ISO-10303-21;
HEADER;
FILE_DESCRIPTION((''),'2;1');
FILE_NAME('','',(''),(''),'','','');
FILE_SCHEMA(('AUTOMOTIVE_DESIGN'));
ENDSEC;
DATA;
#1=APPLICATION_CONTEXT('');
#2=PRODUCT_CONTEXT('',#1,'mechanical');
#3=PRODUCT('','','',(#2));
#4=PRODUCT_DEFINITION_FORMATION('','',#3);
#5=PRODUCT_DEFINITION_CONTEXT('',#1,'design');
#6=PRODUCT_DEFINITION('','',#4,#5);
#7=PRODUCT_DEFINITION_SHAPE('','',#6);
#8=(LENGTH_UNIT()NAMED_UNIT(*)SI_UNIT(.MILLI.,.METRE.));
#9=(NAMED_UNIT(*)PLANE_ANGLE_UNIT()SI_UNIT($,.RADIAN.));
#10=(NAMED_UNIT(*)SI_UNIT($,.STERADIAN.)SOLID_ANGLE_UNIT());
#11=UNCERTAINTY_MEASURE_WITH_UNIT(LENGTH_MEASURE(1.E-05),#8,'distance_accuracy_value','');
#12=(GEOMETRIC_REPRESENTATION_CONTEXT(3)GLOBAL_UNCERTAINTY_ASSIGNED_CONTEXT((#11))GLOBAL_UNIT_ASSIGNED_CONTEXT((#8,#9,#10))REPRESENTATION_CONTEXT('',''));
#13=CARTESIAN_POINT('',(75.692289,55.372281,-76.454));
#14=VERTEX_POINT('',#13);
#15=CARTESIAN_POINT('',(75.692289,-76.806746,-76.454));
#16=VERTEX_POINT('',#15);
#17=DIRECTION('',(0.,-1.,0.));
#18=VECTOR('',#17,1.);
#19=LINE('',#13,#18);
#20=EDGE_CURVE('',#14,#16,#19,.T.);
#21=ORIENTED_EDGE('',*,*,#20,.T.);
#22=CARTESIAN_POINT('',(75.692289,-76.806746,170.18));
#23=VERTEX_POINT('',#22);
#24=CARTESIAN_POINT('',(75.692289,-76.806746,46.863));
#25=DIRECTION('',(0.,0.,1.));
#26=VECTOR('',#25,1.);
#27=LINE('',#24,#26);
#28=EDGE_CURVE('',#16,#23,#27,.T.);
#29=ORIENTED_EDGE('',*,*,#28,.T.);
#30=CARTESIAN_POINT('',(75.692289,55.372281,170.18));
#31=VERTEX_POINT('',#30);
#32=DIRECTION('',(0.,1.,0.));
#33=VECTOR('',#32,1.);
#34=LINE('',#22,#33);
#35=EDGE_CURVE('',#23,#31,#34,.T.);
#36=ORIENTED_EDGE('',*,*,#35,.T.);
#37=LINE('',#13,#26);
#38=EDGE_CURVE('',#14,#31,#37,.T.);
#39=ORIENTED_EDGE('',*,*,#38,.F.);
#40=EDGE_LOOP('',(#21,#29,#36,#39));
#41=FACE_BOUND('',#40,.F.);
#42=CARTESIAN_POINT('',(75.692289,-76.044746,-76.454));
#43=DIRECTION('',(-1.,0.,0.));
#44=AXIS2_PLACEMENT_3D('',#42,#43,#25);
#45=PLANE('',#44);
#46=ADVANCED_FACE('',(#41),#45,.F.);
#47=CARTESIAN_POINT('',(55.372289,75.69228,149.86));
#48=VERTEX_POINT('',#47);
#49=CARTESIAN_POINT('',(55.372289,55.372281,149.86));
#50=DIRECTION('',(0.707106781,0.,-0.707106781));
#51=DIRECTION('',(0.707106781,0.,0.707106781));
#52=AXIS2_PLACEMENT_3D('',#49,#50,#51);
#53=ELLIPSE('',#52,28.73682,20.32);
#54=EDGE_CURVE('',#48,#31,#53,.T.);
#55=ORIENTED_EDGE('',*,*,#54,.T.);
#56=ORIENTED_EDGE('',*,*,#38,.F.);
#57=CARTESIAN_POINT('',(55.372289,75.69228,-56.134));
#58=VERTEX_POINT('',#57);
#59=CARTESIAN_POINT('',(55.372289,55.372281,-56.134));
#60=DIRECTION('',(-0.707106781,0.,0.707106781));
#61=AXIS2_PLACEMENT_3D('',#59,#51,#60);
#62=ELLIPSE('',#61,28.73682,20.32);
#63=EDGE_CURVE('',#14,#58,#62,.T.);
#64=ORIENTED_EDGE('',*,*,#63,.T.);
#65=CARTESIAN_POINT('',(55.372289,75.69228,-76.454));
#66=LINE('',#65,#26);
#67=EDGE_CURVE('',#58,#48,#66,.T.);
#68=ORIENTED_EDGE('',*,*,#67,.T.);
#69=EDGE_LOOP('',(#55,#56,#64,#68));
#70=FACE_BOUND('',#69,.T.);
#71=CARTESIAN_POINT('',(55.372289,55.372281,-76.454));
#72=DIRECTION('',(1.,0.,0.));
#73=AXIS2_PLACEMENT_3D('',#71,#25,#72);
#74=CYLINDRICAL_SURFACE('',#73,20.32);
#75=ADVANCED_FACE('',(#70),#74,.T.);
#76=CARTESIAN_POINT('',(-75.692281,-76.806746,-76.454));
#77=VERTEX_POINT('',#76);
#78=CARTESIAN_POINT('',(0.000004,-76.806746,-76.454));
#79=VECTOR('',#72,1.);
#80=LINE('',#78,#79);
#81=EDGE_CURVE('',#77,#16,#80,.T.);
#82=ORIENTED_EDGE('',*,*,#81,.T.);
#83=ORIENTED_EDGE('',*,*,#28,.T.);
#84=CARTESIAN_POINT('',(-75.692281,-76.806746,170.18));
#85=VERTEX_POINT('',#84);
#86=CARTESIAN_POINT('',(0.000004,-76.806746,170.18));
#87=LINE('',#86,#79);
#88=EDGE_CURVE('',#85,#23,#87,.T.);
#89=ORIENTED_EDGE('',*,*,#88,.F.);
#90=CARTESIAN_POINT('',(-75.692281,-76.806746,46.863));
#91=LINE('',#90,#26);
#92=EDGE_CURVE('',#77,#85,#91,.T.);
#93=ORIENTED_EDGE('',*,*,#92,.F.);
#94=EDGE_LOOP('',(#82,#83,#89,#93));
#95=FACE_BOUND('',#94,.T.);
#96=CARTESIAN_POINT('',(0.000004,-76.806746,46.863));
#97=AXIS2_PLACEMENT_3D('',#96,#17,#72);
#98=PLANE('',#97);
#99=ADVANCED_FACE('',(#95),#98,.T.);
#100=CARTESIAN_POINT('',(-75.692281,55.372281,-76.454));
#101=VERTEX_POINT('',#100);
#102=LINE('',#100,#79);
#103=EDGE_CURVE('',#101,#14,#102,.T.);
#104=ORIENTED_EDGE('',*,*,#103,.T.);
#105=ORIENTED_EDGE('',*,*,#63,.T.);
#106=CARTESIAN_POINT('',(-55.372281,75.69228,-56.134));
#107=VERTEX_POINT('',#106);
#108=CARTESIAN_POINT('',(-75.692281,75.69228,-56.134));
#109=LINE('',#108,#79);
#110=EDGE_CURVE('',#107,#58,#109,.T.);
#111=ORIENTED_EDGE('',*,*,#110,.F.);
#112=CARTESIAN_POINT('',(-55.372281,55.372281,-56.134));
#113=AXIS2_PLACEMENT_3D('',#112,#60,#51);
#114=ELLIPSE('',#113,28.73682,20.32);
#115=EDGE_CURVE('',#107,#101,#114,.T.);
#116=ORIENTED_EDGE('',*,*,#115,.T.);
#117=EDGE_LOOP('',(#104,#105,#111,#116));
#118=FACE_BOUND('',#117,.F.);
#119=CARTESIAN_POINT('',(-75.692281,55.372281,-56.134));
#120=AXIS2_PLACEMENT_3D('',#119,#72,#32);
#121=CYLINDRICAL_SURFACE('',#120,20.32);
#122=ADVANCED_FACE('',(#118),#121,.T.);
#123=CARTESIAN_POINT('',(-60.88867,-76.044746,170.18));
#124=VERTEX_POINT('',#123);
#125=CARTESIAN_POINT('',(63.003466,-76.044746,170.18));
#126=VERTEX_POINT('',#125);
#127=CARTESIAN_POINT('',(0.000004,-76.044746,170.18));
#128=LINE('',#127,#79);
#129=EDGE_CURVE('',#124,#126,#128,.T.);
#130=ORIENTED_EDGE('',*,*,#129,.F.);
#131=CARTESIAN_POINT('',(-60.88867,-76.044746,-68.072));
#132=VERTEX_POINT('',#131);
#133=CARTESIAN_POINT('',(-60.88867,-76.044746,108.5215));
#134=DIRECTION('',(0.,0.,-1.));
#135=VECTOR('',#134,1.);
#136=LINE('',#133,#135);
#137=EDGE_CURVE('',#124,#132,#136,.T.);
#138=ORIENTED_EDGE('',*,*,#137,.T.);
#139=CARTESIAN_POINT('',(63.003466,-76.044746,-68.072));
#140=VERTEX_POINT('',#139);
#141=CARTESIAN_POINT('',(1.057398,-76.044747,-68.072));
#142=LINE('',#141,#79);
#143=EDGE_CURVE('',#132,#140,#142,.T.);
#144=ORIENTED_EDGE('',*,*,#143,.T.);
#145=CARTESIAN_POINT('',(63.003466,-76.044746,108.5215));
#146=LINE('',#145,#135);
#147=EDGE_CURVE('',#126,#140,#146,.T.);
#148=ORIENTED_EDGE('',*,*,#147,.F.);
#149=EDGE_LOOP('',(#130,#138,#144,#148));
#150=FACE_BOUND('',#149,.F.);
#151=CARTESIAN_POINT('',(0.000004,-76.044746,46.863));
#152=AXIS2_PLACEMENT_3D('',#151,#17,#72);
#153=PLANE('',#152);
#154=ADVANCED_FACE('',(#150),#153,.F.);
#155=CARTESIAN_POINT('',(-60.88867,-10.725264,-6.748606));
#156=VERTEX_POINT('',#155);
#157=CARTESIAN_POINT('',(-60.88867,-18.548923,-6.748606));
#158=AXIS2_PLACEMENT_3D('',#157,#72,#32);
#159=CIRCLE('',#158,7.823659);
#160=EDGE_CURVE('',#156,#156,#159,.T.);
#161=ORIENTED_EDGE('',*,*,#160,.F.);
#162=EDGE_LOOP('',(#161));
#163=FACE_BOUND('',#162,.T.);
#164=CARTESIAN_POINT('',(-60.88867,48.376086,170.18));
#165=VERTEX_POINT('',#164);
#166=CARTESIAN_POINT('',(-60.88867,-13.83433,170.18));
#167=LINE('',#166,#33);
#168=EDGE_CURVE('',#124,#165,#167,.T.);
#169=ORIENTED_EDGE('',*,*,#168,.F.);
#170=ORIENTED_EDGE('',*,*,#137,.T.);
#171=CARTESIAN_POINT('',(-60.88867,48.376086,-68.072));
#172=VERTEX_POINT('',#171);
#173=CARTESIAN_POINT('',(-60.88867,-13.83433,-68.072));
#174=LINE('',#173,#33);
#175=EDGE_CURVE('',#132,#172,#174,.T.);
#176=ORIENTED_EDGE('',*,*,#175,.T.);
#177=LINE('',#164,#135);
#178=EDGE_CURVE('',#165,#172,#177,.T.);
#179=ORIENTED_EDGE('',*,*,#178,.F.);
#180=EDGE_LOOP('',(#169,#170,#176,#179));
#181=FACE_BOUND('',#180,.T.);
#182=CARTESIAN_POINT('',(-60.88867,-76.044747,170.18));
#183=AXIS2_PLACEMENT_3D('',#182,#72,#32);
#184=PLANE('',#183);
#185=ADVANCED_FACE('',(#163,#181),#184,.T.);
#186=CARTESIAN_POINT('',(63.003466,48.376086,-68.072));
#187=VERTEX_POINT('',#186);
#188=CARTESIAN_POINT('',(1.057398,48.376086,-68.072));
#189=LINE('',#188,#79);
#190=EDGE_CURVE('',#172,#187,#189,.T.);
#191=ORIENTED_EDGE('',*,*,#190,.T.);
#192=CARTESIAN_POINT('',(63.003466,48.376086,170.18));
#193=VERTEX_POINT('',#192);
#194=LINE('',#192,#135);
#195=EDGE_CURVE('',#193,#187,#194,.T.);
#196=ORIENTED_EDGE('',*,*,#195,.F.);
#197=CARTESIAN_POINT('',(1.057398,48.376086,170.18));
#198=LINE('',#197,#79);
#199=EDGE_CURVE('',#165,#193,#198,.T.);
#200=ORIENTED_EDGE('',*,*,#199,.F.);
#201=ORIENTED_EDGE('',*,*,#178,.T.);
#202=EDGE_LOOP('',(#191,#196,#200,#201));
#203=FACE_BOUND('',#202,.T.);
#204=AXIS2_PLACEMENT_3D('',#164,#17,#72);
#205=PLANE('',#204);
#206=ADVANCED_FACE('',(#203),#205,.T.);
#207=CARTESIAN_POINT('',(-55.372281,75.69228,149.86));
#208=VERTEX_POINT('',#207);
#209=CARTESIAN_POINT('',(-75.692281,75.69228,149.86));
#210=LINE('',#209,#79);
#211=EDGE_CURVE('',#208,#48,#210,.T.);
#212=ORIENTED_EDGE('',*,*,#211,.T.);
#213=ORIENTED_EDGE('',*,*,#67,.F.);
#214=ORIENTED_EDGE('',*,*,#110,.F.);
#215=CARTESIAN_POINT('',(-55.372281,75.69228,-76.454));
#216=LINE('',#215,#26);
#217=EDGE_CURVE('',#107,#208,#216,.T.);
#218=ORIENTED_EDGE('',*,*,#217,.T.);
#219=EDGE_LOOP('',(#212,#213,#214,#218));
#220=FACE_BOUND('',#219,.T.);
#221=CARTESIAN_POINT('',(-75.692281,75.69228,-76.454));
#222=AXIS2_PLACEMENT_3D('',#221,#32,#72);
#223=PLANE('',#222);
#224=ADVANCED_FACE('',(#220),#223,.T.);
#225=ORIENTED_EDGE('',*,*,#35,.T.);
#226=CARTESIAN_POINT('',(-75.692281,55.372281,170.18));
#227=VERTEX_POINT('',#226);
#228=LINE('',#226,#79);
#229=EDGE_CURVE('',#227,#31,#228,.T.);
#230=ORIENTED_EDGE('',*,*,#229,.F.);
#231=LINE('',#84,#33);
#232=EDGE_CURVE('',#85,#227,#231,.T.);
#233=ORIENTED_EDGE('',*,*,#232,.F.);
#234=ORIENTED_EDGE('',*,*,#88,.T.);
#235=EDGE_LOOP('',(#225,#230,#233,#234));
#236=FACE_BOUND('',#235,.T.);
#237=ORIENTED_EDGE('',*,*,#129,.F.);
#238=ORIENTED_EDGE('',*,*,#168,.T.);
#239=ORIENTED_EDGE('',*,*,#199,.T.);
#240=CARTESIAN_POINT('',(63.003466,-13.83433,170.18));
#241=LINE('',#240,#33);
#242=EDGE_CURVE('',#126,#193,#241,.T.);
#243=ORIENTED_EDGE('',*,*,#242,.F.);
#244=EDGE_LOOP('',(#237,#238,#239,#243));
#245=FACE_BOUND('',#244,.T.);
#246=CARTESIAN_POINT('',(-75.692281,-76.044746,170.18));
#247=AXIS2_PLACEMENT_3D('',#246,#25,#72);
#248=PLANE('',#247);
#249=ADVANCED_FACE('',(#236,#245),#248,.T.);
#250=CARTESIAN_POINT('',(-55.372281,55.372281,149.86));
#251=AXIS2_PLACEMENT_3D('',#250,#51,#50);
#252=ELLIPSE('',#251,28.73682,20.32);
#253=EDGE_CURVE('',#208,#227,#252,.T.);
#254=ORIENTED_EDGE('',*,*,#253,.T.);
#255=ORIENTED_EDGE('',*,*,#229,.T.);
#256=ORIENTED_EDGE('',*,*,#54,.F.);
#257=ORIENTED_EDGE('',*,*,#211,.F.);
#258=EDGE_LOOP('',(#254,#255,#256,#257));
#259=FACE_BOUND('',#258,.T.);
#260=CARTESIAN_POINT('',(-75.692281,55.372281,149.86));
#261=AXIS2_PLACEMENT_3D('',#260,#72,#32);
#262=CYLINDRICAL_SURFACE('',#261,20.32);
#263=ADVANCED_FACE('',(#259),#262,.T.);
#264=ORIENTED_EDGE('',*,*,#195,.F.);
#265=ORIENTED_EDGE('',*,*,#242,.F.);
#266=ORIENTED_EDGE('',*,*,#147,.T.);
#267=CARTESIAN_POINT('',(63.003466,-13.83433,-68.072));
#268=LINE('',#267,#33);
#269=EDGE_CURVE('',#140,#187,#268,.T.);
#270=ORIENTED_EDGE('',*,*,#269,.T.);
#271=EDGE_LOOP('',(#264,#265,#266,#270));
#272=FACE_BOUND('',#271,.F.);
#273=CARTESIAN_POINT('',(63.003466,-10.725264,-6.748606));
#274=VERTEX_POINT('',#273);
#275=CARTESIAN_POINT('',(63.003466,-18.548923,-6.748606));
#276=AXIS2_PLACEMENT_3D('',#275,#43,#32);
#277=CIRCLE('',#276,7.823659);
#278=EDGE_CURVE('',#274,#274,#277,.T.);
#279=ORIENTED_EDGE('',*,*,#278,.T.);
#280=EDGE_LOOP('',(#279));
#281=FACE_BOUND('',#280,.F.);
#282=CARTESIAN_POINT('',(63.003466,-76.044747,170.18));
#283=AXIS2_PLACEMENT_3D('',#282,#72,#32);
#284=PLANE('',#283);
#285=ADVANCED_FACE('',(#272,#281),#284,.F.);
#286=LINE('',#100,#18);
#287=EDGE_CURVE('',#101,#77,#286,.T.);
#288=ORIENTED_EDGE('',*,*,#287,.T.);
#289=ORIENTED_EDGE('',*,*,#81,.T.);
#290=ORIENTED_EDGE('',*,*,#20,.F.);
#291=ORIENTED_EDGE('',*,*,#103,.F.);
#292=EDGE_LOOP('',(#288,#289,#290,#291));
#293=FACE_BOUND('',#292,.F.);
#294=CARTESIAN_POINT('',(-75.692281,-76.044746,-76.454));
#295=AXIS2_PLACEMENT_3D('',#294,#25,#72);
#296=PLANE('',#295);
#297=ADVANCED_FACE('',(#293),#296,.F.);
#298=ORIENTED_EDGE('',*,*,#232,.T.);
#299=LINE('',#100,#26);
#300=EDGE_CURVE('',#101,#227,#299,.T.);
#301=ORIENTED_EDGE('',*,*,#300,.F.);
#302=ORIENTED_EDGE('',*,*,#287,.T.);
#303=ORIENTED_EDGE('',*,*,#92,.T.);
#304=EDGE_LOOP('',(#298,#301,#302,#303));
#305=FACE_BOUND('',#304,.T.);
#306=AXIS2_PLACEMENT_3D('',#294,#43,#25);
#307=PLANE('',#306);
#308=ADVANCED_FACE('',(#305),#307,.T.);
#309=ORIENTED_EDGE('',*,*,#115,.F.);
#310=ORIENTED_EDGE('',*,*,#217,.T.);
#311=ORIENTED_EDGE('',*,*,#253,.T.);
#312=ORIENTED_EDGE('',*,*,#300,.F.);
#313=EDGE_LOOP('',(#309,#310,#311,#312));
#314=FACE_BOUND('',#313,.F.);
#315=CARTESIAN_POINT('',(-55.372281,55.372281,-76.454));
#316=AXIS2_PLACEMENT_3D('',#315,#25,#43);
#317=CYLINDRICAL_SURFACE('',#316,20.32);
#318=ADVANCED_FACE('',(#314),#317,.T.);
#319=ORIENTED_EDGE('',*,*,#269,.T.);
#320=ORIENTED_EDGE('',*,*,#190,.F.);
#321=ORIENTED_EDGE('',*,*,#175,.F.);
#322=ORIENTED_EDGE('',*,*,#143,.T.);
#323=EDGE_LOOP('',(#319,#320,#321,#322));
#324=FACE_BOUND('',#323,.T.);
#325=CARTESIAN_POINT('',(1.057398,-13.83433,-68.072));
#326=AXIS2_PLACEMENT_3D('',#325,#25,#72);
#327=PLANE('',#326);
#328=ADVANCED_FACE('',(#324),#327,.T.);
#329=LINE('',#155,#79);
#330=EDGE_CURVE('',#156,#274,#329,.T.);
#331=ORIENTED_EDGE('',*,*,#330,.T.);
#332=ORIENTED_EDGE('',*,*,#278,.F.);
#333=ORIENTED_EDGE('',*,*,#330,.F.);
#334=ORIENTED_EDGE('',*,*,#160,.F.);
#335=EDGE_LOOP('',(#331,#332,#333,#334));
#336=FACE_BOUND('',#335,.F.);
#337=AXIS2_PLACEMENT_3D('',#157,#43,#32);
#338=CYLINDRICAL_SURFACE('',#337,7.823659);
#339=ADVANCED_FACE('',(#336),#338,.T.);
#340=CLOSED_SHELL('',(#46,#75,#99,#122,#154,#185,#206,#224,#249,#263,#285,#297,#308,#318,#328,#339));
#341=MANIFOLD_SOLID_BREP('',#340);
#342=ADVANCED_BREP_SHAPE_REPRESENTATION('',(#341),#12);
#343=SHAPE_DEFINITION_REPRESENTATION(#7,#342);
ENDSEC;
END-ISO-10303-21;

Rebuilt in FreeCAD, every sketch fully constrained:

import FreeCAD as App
import Part
import Sketcher

V = App.Vector
Q = App.Units.Quantity


def edges_at(feature, points):
    """Names of the edges that pass closest to the given points."""
    edges = feature.Shape.Edges
    near = lambda p: min(range(len(edges)), key=lambda i: edges[i].distToShape(Part.Vertex(*p))[0])
    return sorted({f"Edge{near(p) + 1}" for p in points})

doc = App.newDocument("Part")
body = doc.addObject("PartDesign::Body", "Body")

# Sketch on XY plane
sketch1 = doc.addObject("Sketcher::SketchObject", "Sketch")
body.addObject(sketch1)
sketch1.AttachmentSupport = (doc.XY_Plane, [""])
sketch1.MapMode = "FlatFace"
sketch1.AttachmentOffset = App.Placement(V(0, 0, -3.01 * 25.4), App.Rotation())
sketch1.addGeometry([
    Part.LineSegment(V(-76, 76, 0), V(-76, -76, 0)),
    Part.LineSegment(V(-76, -76, 0), V(76, -76, 0)),
    Part.LineSegment(V(76, -76, 0), V(76, 76, 0)),
    Part.LineSegment(V(76, 76, 0), V(-76, 76, 0)),
], False)
sketch1.addConstraint([
    Sketcher.Constraint("Coincident", 0, 2, 1, 1),
    Sketcher.Constraint("Coincident", 1, 2, 2, 1),
    Sketcher.Constraint("Coincident", 2, 2, 3, 1),
    Sketcher.Constraint("Coincident", 3, 2, 0, 1),
    Sketcher.Constraint("Vertical", 0),
    Sketcher.Constraint("Horizontal", 1),
    Sketcher.Constraint("Vertical", 2),
    Sketcher.Constraint("Horizontal", 3),
    Sketcher.Constraint("DistanceX", 1, 1, 1, 2, Q("151.38457 mm")),
    Sketcher.Constraint("DistanceY", 0, 2, 0, 1, Q("151.737027 mm")),
    Sketcher.Constraint("DistanceX", 0, 2, -1, 1, Q("75.692281 mm")),
    Sketcher.Constraint("DistanceY", -1, 1, 2, 2, Q("75.69228 mm")),
])
pad1 = doc.addObject("PartDesign::Pad", "Pad")
body.addObject(pad1)
pad1.Profile = sketch1
pad1.Length = Q("9.71 in")
doc.recompute()

fillet = doc.addObject("PartDesign::Fillet", "Fillet")
body.addObject(fillet)
fillet.Base = (pad1, edges_at(pad1, [
    (0, 75.692, 170.18),
    (75.692, 75.692, 46.863),
    (0, 75.692, -76.454),
    (-75.692, 75.692, 46.863),
]))
fillet.Radius = Q("0.8 in")

# Sketch on XY plane
sketch2 = doc.addObject("Sketcher::SketchObject", "Sketch001")
body.addObject(sketch2)
sketch2.AttachmentSupport = (doc.XY_Plane, [""])
sketch2.MapMode = "FlatFace"
sketch2.AttachmentOffset = App.Placement(V(0, 0, 6.7 * 25.4), App.Rotation())
sketch2.addGeometry([
    Part.LineSegment(V(-61, 48, 0), V(-61, -76, 0)),
    Part.LineSegment(V(-61, -76, 0), V(63, -76, 0)),
    Part.LineSegment(V(63, -76, 0), V(63, 48, 0)),
    Part.LineSegment(V(63, 48, 0), V(-61, 48, 0)),
], False)
sketch2.addConstraint([
    Sketcher.Constraint("Coincident", 0, 2, 1, 1),
    Sketcher.Constraint("Coincident", 1, 2, 2, 1),
    Sketcher.Constraint("Coincident", 2, 2, 3, 1),
    Sketcher.Constraint("Coincident", 3, 2, 0, 1),
    Sketcher.Constraint("Vertical", 0),
    Sketcher.Constraint("Horizontal", 1),
    Sketcher.Constraint("Vertical", 2),
    Sketcher.Constraint("Horizontal", 3),
    Sketcher.Constraint("DistanceX", 1, 1, 1, 2, Q("123.892136 mm")),
    Sketcher.Constraint("DistanceY", 0, 2, 0, 1, Q("124.420833 mm")),
    Sketcher.Constraint("DistanceX", 0, 2, -1, 1, Q("60.88867 mm")),
    Sketcher.Constraint("DistanceY", 0, 2, -1, 1, Q("76.044747 mm")),
])
pocket1 = doc.addObject("PartDesign::Pocket", "Pocket")
body.addObject(pocket1)
pocket1.Profile = sketch2
pocket1.Length = Q("9.38 in")

# Sketch on XZ plane
sketch3 = doc.addObject("Sketcher::SketchObject", "Sketch002")
body.addObject(sketch3)
sketch3.AttachmentSupport = (doc.XZ_Plane, [""])
sketch3.MapMode = "FlatFace"
sketch3.AttachmentOffset = App.Placement(V(0, 0, 76.044746), App.Rotation())
sketch3.addGeometry([
    Part.LineSegment(V(-76, 170, 0), V(-76, -76, 0)),
    Part.LineSegment(V(-76, -76, 0), V(76, -76, 0)),
    Part.LineSegment(V(76, -76, 0), V(76, 170, 0)),
    Part.LineSegment(V(76, 170, 0), V(-76, 170, 0)),
], False)
sketch3.addConstraint([
    Sketcher.Constraint("Coincident", 0, 2, 1, 1),
    Sketcher.Constraint("Coincident", 1, 2, 2, 1),
    Sketcher.Constraint("Coincident", 2, 2, 3, 1),
    Sketcher.Constraint("Coincident", 3, 2, 0, 1),
    Sketcher.Constraint("Vertical", 0),
    Sketcher.Constraint("Horizontal", 1),
    Sketcher.Constraint("Vertical", 2),
    Sketcher.Constraint("Horizontal", 3),
    Sketcher.Constraint("DistanceY", 0, 2, 0, 1, Q("9.71 in")),
    Sketcher.Constraint("DistanceY", -1, 1, 2, 2, Q("6.7 in")),
    Sketcher.Constraint("DistanceX", 1, 1, 1, 2, Q("151.38457 mm")),
    Sketcher.Constraint("DistanceX", 0, 2, -1, 1, Q("75.692281 mm")),
])
pad2 = doc.addObject("PartDesign::Pad", "Pad001")
body.addObject(pad2)
pad2.Profile = sketch3
pad2.Length = Q("0.03 in")

# Sketch on YZ plane
sketch4 = doc.addObject("Sketcher::SketchObject", "Sketch003")
body.addObject(sketch4)
sketch4.AttachmentSupport = (doc.YZ_Plane, [""])
sketch4.MapMode = "FlatFace"
sketch4.AttachmentOffset = App.Placement(V(0, 0, -60.88867), App.Rotation())
sketch4.addGeometry(Part.Circle(V(-19, -7, 0), V(0, 0, 1), 8), False)
sketch4.addConstraint([
    Sketcher.Constraint("Diameter", 0, Q("15.647318 mm")),
    Sketcher.Constraint("DistanceX", 0, 3, -1, 1, Q("18.548923 mm")),
    Sketcher.Constraint("DistanceY", 0, 3, -1, 1, Q("6.748606 mm")),
])
pad3 = doc.addObject("PartDesign::Pad", "Pad002")
body.addObject(pad3)
pad3.Profile = sketch4
pad3.Length = Q("5.13 in")

doc.recompute()
